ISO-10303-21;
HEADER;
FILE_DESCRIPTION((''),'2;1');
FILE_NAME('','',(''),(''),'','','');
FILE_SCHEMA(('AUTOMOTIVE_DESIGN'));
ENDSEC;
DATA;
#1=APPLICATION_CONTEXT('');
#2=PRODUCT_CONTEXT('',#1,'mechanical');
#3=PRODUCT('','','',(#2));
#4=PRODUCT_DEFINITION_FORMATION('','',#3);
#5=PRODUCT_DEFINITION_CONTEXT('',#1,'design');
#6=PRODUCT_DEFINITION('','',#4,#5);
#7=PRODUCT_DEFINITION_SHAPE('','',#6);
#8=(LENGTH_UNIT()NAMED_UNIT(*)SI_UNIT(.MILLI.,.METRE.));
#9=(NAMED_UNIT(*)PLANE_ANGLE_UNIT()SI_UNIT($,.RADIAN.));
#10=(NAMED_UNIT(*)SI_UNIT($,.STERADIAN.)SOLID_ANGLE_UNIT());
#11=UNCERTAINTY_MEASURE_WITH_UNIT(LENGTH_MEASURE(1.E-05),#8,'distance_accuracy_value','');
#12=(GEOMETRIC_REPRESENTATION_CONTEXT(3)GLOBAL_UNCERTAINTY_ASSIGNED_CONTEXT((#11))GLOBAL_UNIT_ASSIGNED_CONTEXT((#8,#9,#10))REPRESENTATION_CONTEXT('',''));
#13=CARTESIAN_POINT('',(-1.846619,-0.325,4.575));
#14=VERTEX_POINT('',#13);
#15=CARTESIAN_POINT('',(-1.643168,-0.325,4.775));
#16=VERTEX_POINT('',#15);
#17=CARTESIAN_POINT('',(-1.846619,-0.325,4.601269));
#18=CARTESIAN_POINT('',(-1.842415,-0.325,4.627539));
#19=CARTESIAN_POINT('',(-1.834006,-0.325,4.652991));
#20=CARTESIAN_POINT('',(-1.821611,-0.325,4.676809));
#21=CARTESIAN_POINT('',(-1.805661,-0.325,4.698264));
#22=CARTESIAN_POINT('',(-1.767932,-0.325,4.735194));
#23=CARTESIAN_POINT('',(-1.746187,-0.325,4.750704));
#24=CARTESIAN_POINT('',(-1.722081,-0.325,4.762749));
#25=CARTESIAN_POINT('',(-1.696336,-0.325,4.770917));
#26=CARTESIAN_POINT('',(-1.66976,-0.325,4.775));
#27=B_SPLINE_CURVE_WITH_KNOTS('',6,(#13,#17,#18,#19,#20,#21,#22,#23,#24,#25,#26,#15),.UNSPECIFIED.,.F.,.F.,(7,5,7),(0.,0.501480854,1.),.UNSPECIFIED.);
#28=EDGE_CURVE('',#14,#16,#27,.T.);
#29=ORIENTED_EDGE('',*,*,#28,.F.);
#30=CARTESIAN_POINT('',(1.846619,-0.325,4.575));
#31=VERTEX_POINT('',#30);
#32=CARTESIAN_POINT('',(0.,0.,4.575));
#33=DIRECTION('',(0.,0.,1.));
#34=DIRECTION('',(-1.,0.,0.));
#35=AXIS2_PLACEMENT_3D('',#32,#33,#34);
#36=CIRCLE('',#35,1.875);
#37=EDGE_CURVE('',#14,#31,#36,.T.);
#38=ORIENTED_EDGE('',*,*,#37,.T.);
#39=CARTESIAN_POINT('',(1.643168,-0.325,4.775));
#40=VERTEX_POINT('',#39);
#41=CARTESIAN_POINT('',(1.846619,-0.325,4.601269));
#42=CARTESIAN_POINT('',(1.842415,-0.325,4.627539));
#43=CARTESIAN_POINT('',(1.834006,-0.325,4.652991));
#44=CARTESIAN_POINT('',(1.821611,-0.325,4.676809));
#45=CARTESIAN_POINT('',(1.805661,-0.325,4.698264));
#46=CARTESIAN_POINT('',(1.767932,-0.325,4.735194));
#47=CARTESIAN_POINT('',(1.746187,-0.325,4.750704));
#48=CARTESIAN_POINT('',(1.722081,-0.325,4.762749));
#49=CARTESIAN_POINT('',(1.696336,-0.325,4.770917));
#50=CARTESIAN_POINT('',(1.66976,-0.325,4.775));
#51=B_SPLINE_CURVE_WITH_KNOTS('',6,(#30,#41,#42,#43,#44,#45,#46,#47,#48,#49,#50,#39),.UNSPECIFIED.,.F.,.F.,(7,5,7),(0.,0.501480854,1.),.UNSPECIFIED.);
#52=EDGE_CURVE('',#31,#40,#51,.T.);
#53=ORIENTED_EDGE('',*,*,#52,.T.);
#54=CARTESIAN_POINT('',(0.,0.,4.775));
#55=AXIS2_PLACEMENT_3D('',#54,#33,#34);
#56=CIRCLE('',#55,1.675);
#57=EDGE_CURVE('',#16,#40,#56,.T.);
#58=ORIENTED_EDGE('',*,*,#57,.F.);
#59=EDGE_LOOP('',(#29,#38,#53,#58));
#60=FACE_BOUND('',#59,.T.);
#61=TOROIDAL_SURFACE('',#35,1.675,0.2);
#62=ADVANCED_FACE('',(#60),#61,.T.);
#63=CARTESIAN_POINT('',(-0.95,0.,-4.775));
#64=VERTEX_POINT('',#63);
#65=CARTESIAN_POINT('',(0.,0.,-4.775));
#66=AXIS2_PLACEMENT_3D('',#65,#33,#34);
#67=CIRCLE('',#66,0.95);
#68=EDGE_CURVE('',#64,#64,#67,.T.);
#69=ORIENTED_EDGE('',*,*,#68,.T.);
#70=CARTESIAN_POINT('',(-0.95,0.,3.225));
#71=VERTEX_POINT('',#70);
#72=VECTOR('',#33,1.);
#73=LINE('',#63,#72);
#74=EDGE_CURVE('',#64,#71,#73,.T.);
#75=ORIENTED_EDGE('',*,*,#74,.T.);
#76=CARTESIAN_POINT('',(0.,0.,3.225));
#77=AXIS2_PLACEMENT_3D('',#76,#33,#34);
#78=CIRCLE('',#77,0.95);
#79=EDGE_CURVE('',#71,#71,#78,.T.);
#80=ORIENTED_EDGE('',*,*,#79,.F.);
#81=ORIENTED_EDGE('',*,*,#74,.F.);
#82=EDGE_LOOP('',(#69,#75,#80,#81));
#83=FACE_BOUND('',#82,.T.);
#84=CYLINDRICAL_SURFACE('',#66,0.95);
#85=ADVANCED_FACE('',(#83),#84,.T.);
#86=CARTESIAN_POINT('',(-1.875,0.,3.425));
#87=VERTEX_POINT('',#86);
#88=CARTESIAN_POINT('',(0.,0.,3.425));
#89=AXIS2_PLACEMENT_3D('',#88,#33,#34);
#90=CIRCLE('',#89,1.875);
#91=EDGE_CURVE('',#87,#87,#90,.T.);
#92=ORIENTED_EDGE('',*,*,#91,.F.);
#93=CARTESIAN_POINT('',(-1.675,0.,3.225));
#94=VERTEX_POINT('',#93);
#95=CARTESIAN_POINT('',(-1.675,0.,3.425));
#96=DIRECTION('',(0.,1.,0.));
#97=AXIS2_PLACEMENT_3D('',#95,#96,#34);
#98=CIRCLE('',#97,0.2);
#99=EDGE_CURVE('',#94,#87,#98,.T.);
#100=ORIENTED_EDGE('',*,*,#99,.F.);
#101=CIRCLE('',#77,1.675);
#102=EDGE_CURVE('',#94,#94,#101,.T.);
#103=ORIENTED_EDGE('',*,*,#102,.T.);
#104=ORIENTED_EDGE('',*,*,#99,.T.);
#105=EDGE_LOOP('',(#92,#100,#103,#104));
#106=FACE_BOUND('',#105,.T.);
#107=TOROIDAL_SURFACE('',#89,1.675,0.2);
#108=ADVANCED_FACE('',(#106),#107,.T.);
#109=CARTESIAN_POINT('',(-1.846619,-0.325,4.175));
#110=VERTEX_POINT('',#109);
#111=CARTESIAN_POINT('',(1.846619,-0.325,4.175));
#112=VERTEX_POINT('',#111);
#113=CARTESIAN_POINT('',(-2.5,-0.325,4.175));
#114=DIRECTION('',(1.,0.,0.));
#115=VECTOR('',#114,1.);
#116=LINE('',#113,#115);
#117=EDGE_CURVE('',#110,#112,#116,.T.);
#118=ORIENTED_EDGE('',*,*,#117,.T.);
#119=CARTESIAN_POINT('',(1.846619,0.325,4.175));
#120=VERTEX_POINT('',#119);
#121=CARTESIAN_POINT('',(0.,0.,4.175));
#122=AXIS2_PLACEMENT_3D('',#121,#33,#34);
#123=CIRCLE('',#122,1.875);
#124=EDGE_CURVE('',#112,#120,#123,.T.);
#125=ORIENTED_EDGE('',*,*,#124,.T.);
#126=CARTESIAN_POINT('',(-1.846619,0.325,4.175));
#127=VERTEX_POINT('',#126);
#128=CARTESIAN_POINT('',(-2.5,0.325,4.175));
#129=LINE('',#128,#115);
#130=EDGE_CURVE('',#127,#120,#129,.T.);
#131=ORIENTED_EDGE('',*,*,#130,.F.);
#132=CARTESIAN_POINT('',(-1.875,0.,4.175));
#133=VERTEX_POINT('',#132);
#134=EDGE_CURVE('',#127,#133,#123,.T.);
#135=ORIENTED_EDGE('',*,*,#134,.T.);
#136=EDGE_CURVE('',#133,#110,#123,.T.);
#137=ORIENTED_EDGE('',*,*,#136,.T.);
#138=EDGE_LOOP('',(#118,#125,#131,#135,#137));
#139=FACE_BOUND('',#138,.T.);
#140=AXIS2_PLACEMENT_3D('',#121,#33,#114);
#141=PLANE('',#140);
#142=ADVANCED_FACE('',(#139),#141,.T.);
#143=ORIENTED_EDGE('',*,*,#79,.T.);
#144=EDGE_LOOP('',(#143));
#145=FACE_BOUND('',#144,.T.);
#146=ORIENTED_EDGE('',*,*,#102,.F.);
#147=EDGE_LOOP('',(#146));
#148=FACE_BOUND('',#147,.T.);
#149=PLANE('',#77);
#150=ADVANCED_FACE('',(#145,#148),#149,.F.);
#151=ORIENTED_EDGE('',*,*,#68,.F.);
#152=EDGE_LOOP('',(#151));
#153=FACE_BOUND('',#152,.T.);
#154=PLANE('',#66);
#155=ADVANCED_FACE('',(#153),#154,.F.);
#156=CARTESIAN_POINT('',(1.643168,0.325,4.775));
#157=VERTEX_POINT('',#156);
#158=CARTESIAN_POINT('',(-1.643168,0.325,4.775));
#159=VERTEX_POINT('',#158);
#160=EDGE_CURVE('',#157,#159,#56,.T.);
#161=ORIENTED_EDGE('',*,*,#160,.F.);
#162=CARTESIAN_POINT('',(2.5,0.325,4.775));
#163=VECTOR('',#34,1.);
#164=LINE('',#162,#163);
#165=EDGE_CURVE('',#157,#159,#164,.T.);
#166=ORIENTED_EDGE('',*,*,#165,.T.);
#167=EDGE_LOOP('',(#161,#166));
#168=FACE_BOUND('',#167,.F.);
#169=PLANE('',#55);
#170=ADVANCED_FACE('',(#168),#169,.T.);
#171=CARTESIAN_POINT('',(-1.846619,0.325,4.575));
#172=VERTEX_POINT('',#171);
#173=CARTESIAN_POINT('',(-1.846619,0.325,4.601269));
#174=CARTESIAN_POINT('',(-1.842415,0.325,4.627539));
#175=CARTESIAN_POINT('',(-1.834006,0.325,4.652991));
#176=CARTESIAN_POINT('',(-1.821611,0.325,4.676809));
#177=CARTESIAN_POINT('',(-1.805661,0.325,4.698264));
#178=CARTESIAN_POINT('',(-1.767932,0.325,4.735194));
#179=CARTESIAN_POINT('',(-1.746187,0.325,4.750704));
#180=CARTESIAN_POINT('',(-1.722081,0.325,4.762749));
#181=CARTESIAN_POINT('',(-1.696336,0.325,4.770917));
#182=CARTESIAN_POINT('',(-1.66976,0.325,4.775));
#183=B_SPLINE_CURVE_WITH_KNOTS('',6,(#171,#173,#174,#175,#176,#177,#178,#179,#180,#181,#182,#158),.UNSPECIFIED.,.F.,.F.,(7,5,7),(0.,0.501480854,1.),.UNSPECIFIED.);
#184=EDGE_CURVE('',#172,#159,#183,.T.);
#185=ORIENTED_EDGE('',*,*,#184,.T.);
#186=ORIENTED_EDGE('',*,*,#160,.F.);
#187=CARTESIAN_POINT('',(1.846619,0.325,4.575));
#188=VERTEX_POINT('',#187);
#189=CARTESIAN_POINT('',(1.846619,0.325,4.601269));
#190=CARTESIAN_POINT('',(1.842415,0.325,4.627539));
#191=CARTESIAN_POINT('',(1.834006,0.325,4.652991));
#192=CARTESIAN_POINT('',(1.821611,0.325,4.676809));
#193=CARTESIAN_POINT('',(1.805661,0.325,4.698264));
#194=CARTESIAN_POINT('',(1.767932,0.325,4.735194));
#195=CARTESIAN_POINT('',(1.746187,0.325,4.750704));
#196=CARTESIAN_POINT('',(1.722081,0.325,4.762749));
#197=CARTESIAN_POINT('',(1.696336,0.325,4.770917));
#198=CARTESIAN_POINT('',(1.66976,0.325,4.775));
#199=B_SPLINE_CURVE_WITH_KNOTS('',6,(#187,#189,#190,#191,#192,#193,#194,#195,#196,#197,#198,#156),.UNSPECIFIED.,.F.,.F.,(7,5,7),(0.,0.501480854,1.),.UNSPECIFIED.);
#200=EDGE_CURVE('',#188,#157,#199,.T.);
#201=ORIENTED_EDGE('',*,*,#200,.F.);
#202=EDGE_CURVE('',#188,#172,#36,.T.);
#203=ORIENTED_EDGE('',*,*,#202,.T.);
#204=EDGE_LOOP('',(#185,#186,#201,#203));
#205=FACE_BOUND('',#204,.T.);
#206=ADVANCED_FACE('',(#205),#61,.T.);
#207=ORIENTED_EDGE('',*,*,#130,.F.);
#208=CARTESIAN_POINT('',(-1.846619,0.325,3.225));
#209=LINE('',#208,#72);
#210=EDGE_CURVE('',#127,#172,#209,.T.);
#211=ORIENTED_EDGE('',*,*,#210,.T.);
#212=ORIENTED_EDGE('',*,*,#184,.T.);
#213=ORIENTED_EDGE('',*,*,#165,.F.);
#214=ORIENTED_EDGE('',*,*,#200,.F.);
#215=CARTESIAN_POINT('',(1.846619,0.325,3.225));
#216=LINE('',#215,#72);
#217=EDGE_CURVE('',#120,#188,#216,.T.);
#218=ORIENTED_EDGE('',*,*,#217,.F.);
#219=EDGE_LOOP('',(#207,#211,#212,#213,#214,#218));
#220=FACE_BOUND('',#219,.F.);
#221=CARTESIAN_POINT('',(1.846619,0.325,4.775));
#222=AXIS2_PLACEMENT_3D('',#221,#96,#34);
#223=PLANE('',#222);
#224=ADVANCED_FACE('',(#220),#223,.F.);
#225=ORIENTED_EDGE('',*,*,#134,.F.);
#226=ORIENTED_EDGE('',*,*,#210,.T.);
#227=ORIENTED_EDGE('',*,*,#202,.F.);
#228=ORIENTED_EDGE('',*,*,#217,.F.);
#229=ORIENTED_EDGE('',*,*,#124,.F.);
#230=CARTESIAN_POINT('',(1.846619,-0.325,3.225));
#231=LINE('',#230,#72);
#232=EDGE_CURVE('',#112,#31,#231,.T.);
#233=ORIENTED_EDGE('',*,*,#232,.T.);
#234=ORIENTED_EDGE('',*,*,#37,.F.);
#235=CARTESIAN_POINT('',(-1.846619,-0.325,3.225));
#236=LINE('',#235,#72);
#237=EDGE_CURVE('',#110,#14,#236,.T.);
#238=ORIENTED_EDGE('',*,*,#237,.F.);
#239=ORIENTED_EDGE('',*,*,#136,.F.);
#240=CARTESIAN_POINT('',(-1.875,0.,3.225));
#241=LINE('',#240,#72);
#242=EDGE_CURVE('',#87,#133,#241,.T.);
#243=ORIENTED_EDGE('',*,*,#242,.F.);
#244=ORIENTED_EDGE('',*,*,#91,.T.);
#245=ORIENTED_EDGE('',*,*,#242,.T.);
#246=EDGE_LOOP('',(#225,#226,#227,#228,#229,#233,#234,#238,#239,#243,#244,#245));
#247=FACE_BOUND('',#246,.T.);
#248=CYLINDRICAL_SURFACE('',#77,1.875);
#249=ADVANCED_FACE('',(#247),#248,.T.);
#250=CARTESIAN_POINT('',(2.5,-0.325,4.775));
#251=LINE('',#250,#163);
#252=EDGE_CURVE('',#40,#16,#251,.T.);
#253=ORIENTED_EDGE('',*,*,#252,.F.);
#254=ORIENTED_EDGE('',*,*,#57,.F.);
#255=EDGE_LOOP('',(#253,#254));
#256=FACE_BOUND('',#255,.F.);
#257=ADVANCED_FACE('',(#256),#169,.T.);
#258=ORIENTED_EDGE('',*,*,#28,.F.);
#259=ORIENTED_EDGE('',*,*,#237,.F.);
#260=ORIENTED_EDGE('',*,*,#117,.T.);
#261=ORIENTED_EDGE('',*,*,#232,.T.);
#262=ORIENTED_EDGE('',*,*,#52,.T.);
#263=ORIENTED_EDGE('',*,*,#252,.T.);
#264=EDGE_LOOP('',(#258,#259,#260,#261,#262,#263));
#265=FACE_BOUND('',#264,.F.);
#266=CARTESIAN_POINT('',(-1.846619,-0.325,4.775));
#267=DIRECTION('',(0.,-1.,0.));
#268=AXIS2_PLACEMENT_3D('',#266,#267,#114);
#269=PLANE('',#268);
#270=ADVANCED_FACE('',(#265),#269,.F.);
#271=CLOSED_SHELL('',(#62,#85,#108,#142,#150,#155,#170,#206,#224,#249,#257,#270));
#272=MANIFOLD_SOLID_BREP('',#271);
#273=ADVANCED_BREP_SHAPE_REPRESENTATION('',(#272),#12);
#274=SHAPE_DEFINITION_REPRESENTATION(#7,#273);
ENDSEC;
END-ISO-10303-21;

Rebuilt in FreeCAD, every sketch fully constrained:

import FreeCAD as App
import Part
import Sketcher
from FreeCAD import Vector


def edges_at(feature, points):
    """Names of the edges that pass closest to the given points."""
    edges = feature.Shape.Edges
    near = lambda p: min(range(len(edges)), key=lambda i: edges[i].distToShape(Part.Vertex(*p))[0])
    return sorted({f"Edge{near(p) + 1}" for p in points})


def add_polygon(sketch, points):
    """Adds a closed chain of lines whose ends are joined by coincident constraints."""
    first, n = sketch.GeometryCount, len(points)
    for a, b in zip(points, points[1:] + points[:1]):
        sketch.addGeometry(Part.LineSegment(App.Vector(*a, 0), App.Vector(*b, 0)), False)
    for i in range(n):
        sketch.addConstraint(Sketcher.Constraint("Coincident", first + i, 2, first + (i + 1) % n, 1))

doc = App.newDocument("Part")
body = doc.addObject("PartDesign::Body", "Body")

# Sketch on XZ plane
sketch1 = body.newObject("Sketcher::SketchObject", "Sketch")
sketch1.AttachmentSupport = (doc.getObject("XZ_Plane"), [""])
sketch1.MapMode = "FlatFace"
add_polygon(sketch1, [(0, -4.8), (-0.9, -4.8), (-0.9, 3.2), (-1.9, 3.2), (-1.9, 4.8), (0, 4.8)])  # lines 0-5
sketch1.addConstraint([
    Sketcher.Constraint("Horizontal", 0),
    Sketcher.Constraint("Vertical", 1),
    Sketcher.Constraint("Horizontal", 2),
    Sketcher.Constraint("Vertical", 3),
    Sketcher.Constraint("Horizontal", 4),
    Sketcher.Constraint("Vertical", 5),
    Sketcher.Constraint("Symmetric", 4, 2, 5, 2, -1, 1),
    Sketcher.Constraint("DistanceY", 1, 1, 1, 2, 8.0),
    Sketcher.Constraint("DistanceY", 3, 1, 3, 2, 1.55),
    Sketcher.Constraint("DistanceX", 0, 2, 0, 1, 0.95),
    Sketcher.Constraint("DistanceX", 2, 2, 2, 1, 0.925),
])
revolution = body.newObject("PartDesign::Revolution", "Revolution")
revolution.Profile = sketch1
revolution.ReferenceAxis = (sketch1, ["V_Axis"])
revolution.Angle = 360
doc.recompute()

fillet = body.newObject("PartDesign::Fillet", "Fillet")
fillet.Base = (revolution, edges_at(revolution, [(1.875, 0, 4.775), (1.875, 0, 3.225)]))
fillet.Radius = 0.2

# Sketch on XY plane
sketch2 = body.newObject("Sketcher::SketchObject", "Sketch001")
sketch2.AttachmentSupport = (doc.getObject("XY_Plane"), [""])
sketch2.MapMode = "FlatFace"
sketch2.AttachmentOffset = App.Placement(Vector(0, 0, 4.775), App.Rotation())
add_polygon(sketch2, [(2.5, -0.3), (2.5, 0.3), (-2.5, 0.3), (-2.5, -0.3)])  # lines 0-3
sketch2.addConstraint([
    Sketcher.Constraint("Vertical", 0),
    Sketcher.Constraint("Horizontal", 1),
    Sketcher.Constraint("Vertical", 2),
    Sketcher.Constraint("Horizontal", 3),
    Sketcher.Constraint("Symmetric", 0, 2, 2, 2, -1, 1),
    Sketcher.Constraint("DistanceX", 1, 2, 1, 1, 5.0),
    Sketcher.Constraint("DistanceY", 0, 1, 0, 2, 0.65),
])
pocket1 = body.newObject("PartDesign::Pocket", "Pocket")
pocket1.Profile = sketch2
pocket1.Length = 0.6

doc.recompute()
